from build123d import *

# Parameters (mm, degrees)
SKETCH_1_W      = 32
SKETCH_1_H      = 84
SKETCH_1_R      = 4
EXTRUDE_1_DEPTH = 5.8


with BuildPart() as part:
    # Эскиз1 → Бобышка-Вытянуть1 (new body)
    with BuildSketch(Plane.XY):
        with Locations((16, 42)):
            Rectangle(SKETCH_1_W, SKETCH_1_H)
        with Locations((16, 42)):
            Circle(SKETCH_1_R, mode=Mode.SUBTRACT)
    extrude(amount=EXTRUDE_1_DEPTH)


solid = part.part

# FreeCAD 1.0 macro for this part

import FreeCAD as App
import Part
import Sketcher

V = App.Vector
Q = App.Units.Quantity


def add_polygon(sketch, points):
    """Adds a closed chain of lines whose ends are joined by coincident constraints."""
    first, n = sketch.GeometryCount, len(points)
    for a, b in zip(points, points[1:] + points[:1]):
        sketch.addGeometry(Part.LineSegment(App.Vector(*a, 0), App.Vector(*b, 0)), False)
    for i in range(n):
        sketch.addConstraint(Sketcher.Constraint("Coincident", first + i, 2, first + (i + 1) % n, 1))

doc = App.newDocument("Part")
body = doc.addObject("PartDesign::Body", "Body")

sketch1 = doc.addObject("Sketcher::SketchObject", "Sketch")
body.addObject(sketch1)
sketch1.AttachmentSupport = (doc.XY_Plane, [""])
sketch1.MapMode = "FlatFace"
add_polygon(sketch1, [(0, 84), (0, 0), (32, 0), (32, 84)])
sketch1.addGeometry(Part.Circle(V(16, 42, 0), V(0, 0, 1), 4), False)
sketch1.addConstraint([
    Sketcher.Constraint("Vertical", 0),
    Sketcher.Constraint("Horizontal", 1),
    Sketcher.Constraint("Vertical", 2),
    Sketcher.Constraint("Horizontal", 3),
    Sketcher.Constraint("Coincident", 0, 2, -1, 1),
    Sketcher.Constraint("Diameter", 4, Q("8 mm")),
    Sketcher.Constraint("DistanceX", 1, 1, 1, 2, Q("32 mm")),
    Sketcher.Constraint("DistanceY", 0, 2, 0, 1, Q("84 mm")),
    Sketcher.Constraint("DistanceX", -1, 1, 4, 3, Q("16 mm")),
    Sketcher.Constraint("DistanceY", -1, 1, 4, 3, Q("42 mm")),
])
pad1 = doc.addObject("PartDesign::Pad", "Pad")
body.addObject(pad1)
pad1.Profile = sketch1
pad1.Length = 5.8

doc.recompute()
